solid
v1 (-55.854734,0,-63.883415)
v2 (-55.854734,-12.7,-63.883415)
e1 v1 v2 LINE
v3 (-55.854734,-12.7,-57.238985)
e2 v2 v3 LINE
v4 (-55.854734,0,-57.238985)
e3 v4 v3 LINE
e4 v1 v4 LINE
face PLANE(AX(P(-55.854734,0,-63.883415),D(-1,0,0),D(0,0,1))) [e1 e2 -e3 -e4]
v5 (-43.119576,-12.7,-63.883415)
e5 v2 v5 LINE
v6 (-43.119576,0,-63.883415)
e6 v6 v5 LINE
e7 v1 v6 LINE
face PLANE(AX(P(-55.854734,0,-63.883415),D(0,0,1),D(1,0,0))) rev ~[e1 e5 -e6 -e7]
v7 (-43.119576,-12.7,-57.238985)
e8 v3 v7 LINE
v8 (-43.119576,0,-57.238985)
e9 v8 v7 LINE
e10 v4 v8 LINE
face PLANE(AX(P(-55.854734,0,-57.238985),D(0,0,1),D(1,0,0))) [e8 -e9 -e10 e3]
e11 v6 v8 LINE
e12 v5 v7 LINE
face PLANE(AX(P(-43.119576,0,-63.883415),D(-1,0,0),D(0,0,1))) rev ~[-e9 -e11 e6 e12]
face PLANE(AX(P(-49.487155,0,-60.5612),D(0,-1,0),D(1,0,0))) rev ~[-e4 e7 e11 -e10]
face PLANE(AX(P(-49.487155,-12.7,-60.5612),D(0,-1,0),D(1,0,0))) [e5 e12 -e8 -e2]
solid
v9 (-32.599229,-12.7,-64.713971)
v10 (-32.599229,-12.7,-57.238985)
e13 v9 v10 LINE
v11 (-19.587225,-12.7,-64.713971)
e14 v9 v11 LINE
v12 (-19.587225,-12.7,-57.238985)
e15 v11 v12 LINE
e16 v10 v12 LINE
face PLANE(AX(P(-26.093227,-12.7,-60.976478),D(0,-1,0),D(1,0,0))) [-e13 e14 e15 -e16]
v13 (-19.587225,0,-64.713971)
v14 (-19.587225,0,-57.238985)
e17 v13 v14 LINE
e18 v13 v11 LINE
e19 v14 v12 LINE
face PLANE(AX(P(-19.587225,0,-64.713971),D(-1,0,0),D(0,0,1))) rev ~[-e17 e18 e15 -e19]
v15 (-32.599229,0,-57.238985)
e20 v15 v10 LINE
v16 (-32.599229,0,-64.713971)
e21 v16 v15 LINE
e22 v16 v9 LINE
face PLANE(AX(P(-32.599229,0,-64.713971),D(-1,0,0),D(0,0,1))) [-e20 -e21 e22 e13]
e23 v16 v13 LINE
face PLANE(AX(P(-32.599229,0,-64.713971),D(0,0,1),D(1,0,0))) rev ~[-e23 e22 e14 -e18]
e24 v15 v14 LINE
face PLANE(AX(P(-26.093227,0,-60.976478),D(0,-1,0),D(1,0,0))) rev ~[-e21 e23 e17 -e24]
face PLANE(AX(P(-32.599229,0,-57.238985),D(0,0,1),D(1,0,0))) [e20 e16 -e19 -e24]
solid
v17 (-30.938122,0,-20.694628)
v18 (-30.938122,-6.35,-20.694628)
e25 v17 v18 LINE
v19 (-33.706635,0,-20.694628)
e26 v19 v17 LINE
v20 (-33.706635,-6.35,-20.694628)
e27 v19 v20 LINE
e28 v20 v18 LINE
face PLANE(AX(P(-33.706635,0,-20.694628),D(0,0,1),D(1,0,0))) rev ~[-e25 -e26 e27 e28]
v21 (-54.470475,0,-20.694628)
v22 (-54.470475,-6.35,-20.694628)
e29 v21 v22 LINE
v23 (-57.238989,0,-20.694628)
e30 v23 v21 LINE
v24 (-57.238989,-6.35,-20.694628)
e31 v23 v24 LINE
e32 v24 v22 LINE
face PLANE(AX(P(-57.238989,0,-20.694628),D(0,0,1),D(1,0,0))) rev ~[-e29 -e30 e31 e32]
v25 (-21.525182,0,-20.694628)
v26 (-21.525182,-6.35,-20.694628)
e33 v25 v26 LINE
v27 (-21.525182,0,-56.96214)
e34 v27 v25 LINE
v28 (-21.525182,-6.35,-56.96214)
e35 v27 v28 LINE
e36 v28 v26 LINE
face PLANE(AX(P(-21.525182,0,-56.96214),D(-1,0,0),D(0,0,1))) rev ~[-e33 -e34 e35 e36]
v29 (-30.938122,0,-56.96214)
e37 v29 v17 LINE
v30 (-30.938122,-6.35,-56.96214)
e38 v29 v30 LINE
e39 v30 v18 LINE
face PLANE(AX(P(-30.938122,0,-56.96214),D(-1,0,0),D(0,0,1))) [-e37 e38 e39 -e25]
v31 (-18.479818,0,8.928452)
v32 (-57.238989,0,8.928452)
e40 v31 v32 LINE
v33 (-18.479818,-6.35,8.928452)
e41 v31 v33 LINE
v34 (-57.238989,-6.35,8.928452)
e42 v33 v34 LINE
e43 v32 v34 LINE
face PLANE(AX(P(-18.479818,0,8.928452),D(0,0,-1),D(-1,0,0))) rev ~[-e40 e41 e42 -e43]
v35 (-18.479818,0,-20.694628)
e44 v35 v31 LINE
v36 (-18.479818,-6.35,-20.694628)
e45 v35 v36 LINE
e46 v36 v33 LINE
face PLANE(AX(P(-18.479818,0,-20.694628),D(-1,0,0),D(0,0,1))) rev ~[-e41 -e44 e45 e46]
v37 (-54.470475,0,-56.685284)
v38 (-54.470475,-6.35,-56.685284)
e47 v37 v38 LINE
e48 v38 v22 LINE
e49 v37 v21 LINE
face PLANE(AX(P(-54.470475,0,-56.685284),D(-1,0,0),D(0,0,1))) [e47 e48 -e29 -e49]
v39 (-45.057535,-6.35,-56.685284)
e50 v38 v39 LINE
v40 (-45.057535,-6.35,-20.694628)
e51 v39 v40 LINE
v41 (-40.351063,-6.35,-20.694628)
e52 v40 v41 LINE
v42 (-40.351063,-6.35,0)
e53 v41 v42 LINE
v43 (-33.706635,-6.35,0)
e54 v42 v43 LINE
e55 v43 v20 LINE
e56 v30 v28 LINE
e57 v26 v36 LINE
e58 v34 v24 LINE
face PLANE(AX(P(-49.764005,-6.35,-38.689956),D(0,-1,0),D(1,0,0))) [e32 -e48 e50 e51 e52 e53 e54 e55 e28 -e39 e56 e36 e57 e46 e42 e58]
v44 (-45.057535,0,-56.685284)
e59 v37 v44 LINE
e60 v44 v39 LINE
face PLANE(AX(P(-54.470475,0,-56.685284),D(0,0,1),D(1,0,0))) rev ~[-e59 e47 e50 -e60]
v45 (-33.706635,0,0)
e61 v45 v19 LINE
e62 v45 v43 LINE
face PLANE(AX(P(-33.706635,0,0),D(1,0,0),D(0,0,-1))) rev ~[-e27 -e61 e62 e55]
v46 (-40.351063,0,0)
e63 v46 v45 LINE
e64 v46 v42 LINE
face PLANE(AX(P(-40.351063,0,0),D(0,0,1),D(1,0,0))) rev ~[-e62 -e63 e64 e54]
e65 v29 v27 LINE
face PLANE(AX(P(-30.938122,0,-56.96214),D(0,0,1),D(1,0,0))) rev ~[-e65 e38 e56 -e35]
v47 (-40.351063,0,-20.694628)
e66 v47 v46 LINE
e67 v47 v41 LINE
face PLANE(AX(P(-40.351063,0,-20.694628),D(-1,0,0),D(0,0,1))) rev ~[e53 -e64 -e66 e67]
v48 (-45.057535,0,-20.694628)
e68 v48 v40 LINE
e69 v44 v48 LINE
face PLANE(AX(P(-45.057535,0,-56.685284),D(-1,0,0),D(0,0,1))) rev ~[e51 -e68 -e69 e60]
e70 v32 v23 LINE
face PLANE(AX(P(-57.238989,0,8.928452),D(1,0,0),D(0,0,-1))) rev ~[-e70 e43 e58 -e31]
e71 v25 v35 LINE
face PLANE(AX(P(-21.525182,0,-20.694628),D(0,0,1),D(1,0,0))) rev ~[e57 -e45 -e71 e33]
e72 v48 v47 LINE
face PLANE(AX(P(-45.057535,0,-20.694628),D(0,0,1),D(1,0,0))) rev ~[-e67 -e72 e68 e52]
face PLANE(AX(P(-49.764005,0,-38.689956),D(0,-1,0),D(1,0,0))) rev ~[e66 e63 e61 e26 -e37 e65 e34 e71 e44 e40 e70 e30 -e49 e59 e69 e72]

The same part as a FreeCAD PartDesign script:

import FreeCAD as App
import Part
import Sketcher
Q = App.Units.Quantity

doc = App.newDocument("Part")
body = doc.addObject("PartDesign::Body", "Body")
body.AllowCompound = True

sketch1 = body.newObject("Sketcher::SketchObject", "Sketch")
sketch1.AttachmentSupport = (doc.getObject("XZ_Plane"), [""])
sketch1.MapMode = "FlatFace"
sketch1.addGeometry(Part.LineSegment(App.Vector(-55.854734, -57.238985, 0), App.Vector(-55.854734, -63.883415, 0)), False)
sketch1.addGeometry(Part.LineSegment(App.Vector(-55.854734, -63.883415, 0), App.Vector(-43.119576, -63.883415, 0)), False)
sketch1.addGeometry(Part.LineSegment(App.Vector(-43.119576, -63.883415, 0), App.Vector(-43.119576, -57.238985, 0)), False)
sketch1.addGeometry(Part.LineSegment(App.Vector(-43.119576, -57.238985, 0), App.Vector(-55.854734, -57.238985, 0)), False)
sketch1.addGeometry(Part.LineSegment(App.Vector(-32.599229, -57.238985, 0), App.Vector(-32.599229, -64.713971, 0)), False)
sketch1.addGeometry(Part.LineSegment(App.Vector(-32.599229, -64.713971, 0), App.Vector(-19.587225, -64.713971, 0)), False)
sketch1.addGeometry(Part.LineSegment(App.Vector(-19.587225, -64.713971, 0), App.Vector(-19.587225, -57.238985, 0)), False)
sketch1.addGeometry(Part.LineSegment(App.Vector(-19.587225, -57.238985, 0), App.Vector(-32.599229, -57.238985, 0)), False)
sketch1.addConstraint(Sketcher.Constraint("Coincident", 0, 2, 1, 1))
sketch1.addConstraint(Sketcher.Constraint("Coincident", 1, 2, 2, 1))
sketch1.addConstraint(Sketcher.Constraint("Coincident", 2, 2, 3, 1))
sketch1.addConstraint(Sketcher.Constraint("Coincident", 3, 2, 0, 1))
sketch1.addConstraint(Sketcher.Constraint("Coincident", 4, 2, 5, 1))
sketch1.addConstraint(Sketcher.Constraint("Coincident", 5, 2, 6, 1))
sketch1.addConstraint(Sketcher.Constraint("Coincident", 6, 2, 7, 1))
sketch1.addConstraint(Sketcher.Constraint("Coincident", 7, 2, 4, 1))
sketch1.addConstraint(Sketcher.Constraint("Vertical", 0))
sketch1.addConstraint(Sketcher.Constraint("Horizontal", 1))
sketch1.addConstraint(Sketcher.Constraint("Vertical", 2))
sketch1.addConstraint(Sketcher.Constraint("Horizontal", 3))
sketch1.addConstraint(Sketcher.Constraint("Vertical", 4))
sketch1.addConstraint(Sketcher.Constraint("Horizontal", 5))
sketch1.addConstraint(Sketcher.Constraint("Vertical", 6))
sketch1.addConstraint(Sketcher.Constraint("Horizontal", 7))
sketch1.addConstraint(Sketcher.Constraint("Horizontal", 3, 2, 6, 2))
sketch1.addConstraint(Sketcher.Constraint("DistanceY", 0, 2, 0, 1, 6.644431))
sketch1.addConstraint(Sketcher.Constraint("DistanceX", 1, 1, 1, 2, 12.735158))
sketch1.addConstraint(Sketcher.Constraint("DistanceX", 5, 1, 5, 2, 13.012005))
sketch1.addConstraint(Sketcher.Constraint("DistanceY", 4, 2, 4, 1, 7.474985))
sketch1.addConstraint(Sketcher.Constraint("DistanceX", 4, 2, -1, 1, 32.599229))
sketch1.addConstraint(Sketcher.Constraint("DistanceY", 4, 2, -1, 1, 64.713971))
sketch1.addConstraint(Sketcher.Constraint("DistanceX", 1, 2, 5, 2, 23.532352))
pad1 = body.newObject("PartDesign::Pad", "Pad")
pad1.Profile = sketch1
pad1.Length = Q("0.5 in")
body2 = doc.addObject("PartDesign::Body", "Body001")

sketch2 = body2.newObject("Sketcher::SketchObject", "Sketch001")
sketch2.AttachmentSupport = (doc.getObject("XZ_Plane001"), [""])
sketch2.MapMode = "FlatFace"
sketch2.addGeometry(Part.LineSegment(App.Vector(-54.470475, -20.694628, 0), App.Vector(-54.470475, -56.685284, 0)), False)
sketch2.addGeometry(Part.LineSegment(App.Vector(-54.470475, -56.685284, 0), App.Vector(-45.057535, -56.685284, 0)), False)
sketch2.addGeometry(Part.LineSegment(App.Vector(-45.057535, -56.685284, 0), App.Vector(-45.057535, -20.694628, 0)), False)
sketch2.addGeometry(Part.LineSegment(App.Vector(-45.057535, -20.694628, 0), App.Vector(-40.351063, -20.694628, 0)), False)
sketch2.addGeometry(Part.LineSegment(App.Vector(-40.351063, -20.694628, 0), App.Vector(-40.351063, 0, 0)), False)
sketch2.addGeometry(Part.LineSegment(App.Vector(-40.351063, 0, 0), App.Vector(-33.706635, 0, 0)), False)
sketch2.addGeometry(Part.LineSegment(App.Vector(-33.706635, 0, 0), App.Vector(-33.706635, -20.694628, 0)), False)
sketch2.addGeometry(Part.LineSegment(App.Vector(-33.706635, -20.694628, 0), App.Vector(-30.938122, -20.694628, 0)), False)
sketch2.addGeometry(Part.LineSegment(App.Vector(-30.938122, -20.694628, 0), App.Vector(-30.938122, -56.96214, 0)), False)
sketch2.addGeometry(Part.LineSegment(App.Vector(-30.938122, -56.96214, 0), App.Vector(-21.525182, -56.96214, 0)), False)
sketch2.addGeometry(Part.LineSegment(App.Vector(-21.525182, -56.96214, 0), App.Vector(-21.525182, -20.694628, 0)), False)
sketch2.addGeometry(Part.LineSegment(App.Vector(-21.525182, -20.694628, 0), App.Vector(-18.479818, -20.694628, 0)), False)
sketch2.addGeometry(Part.LineSegment(App.Vector(-18.479818, -20.694628, 0), App.Vector(-18.479818, 8.928452, 0)), False)
sketch2.addGeometry(Part.LineSegment(App.Vector(-18.479818, 8.928452, 0), App.Vector(-57.238989, 8.928452, 0)), False)
sketch2.addGeometry(Part.LineSegment(App.Vector(-57.238989, 8.928452, 0), App.Vector(-57.238989, -20.694628, 0)), False)
sketch2.addGeometry(Part.LineSegment(App.Vector(-57.238989, -20.694628, 0), App.Vector(-54.470475, -20.694628, 0)), False)
sketch2.addConstraint(Sketcher.Constraint("Coincident", 0, 2, 1, 1))
sketch2.addConstraint(Sketcher.Constraint("Coincident", 1, 2, 2, 1))
sketch2.addConstraint(Sketcher.Constraint("Coincident", 2, 2, 3, 1))
sketch2.addConstraint(Sketcher.Constraint("Coincident", 3, 2, 4, 1))
sketch2.addConstraint(Sketcher.Constraint("Coincident", 4, 2, 5, 1))
sketch2.addConstraint(Sketcher.Constraint("Coincident", 5, 2, 6, 1))
sketch2.addConstraint(Sketcher.Constraint("Coincident", 6, 2, 7, 1))
sketch2.addConstraint(Sketcher.Constraint("Coincident", 7, 2, 8, 1))
sketch2.addConstraint(Sketcher.Constraint("Coincident", 8, 2, 9, 1))
sketch2.addConstraint(Sketcher.Constraint("Coincident", 9, 2, 10, 1))
sketch2.addConstraint(Sketcher.Constraint("Coincident", 10, 2, 11, 1))
sketch2.addConstraint(Sketcher.Constraint("Coincident", 11, 2, 12, 1))
sketch2.addConstraint(Sketcher.Constraint("Coincident", 12, 2, 13, 1))
sketch2.addConstraint(Sketcher.Constraint("Coincident", 13, 2, 14, 1))
sketch2.addConstraint(Sketcher.Constraint("Coincident", 14, 2, 15, 1))
sketch2.addConstraint(Sketcher.Constraint("Coincident", 15, 2, 0, 1))
sketch2.addConstraint(Sketcher.Constraint("Vertical", 0))
sketch2.addConstraint(Sketcher.Constraint("Horizontal", 1))
sketch2.addConstraint(Sketcher.Constraint("Vertical", 2))
sketch2.addConstraint(Sketcher.Constraint("Horizontal", 3))
sketch2.addConstraint(Sketcher.Constraint("Vertical", 4))
sketch2.addConstraint(Sketcher.Constraint("Horizontal", 5))
sketch2.addConstraint(Sketcher.Constraint("Vertical", 6))
sketch2.addConstraint(Sketcher.Constraint("Horizontal", 7))
sketch2.addConstraint(Sketcher.Constraint("Vertical", 8))
sketch2.addConstraint(Sketcher.Constraint("Horizontal", 9))
sketch2.addConstraint(Sketcher.Constraint("Vertical", 10))
sketch2.addConstraint(Sketcher.Constraint("Horizontal", 11))
sketch2.addConstraint(Sketcher.Constraint("Vertical", 12))
sketch2.addConstraint(Sketcher.Constraint("Horizontal", 13))
sketch2.addConstraint(Sketcher.Constraint("Vertical", 14))
sketch2.addConstraint(Sketcher.Constraint("Horizontal", 15))
sketch2.addConstraint(Sketcher.Constraint("PointOnObject", 4, 2, -1))
sketch2.addConstraint(Sketcher.Constraint("Horizontal", 3, 2, 6, 2))
sketch2.addConstraint(Sketcher.Constraint("Horizontal", 7, 2, 10, 2))
sketch2.addConstraint(Sketcher.Constraint("Horizontal", 11, 2, 14, 2))
sketch2.addConstraint(Sketcher.Constraint("Equal", 1, 9))
sketch2.addConstraint(Sketcher.Constraint("Equal", 7, 15))
sketch2.addConstraint(Sketcher.Constraint("DistanceY", 8, 2, 1, 2, Q("0.0108998 in")))
sketch2.addConstraint(Sketcher.Constraint("DistanceX", 1, 1, 1, 2, 9.412941))
sketch2.addConstraint(Sketcher.Constraint("DistanceX", 3, 1, 3, 2, 4.706471))
sketch2.addConstraint(Sketcher.Constraint("DistanceX", 5, 1, 5, 2, 6.644428))
sketch2.addConstraint(Sketcher.Constraint("DistanceX", 13, 2, 13, 1, 38.759171))
sketch2.addConstraint(Sketcher.Constraint("DistanceY", 4, 1, 4, 2, 20.694628))
sketch2.addConstraint(Sketcher.Constraint("DistanceY", 8, 2, 8, 1, 36.267512))
sketch2.addConstraint(Sketcher.Constraint("DistanceY", 12, 1, 12, 2, 29.62308))
sketch2.addConstraint(Sketcher.Constraint("DistanceX", 7, 1, 7, 2, 2.768513))
sketch2.addConstraint(Sketcher.Constraint("DistanceX", 7, 2, -1, 1, 30.938122))
pad2 = body2.newObject("PartDesign::Pad", "Pad001")
pad2.Profile = sketch2
pad2.Length = Q("0.25 in")

doc.recompute()
